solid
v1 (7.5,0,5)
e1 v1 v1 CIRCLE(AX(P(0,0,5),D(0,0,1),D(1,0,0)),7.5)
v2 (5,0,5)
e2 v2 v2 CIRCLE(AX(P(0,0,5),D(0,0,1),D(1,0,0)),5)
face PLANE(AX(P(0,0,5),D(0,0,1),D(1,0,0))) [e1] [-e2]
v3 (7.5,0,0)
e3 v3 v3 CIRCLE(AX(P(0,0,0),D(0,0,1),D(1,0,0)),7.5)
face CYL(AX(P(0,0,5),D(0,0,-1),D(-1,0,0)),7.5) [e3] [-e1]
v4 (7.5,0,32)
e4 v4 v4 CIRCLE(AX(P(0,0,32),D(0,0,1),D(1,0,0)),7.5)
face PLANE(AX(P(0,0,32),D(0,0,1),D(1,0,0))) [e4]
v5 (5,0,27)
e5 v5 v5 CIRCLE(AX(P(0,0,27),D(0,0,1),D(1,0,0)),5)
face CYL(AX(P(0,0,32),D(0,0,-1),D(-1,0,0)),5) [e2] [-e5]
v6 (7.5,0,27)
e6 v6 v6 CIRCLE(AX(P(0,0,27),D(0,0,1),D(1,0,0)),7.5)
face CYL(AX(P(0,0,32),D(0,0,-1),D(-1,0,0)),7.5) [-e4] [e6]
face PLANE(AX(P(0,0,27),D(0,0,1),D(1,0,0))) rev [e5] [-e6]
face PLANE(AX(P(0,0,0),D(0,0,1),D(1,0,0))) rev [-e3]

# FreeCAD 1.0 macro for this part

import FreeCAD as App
import Part
import Sketcher

V = App.Vector

doc = App.newDocument("Part")
body = doc.addObject("PartDesign::Body", "Body")

sketch1 = doc.addObject("Sketcher::SketchObject", "Sketch")
body.addObject(sketch1)
sketch1.AttachmentSupport = (doc.XY_Plane, [""])
sketch1.MapMode = "FlatFace"
sketch1.addGeometry(Part.Circle(V(0, 0, 0), V(0, 0, 1), 5), False)
sketch1.addConstraint(Sketcher.Constraint("Coincident", 0, 3, -1, 1))
sketch1.addConstraint(Sketcher.Constraint("Diameter", 0, 10.0))
pad1 = doc.addObject("PartDesign::Pad", "Pad")
body.addObject(pad1)
pad1.Profile = sketch1
pad1.Length = 32

sketch2 = doc.addObject("Sketcher::SketchObject", "Sketch001")
body.addObject(sketch2)
sketch2.AttachmentSupport = (doc.XY_Plane, [""])
sketch2.MapMode = "FlatFace"
sketch2.addGeometry(Part.Circle(V(0, 0, 0), V(0, 0, 1), 8), False)
sketch2.addGeometry(Part.Circle(V(0, 0, 0), V(0, 0, 1), 5), False)
sketch2.addConstraint(Sketcher.Constraint("Coincident", 0, 3, -1, 1))
sketch2.addConstraint(Sketcher.Constraint("Coincident", 1, 3, -1, 1))
sketch2.addConstraint(Sketcher.Constraint("Diameter", 0, 15.0))
sketch2.addConstraint(Sketcher.Constraint("Diameter", 1, 10.0))
pad2 = doc.addObject("PartDesign::Pad", "Pad001")
body.addObject(pad2)
pad2.Profile = sketch2
pad2.Length = 5

sketch3 = doc.addObject("Sketcher::SketchObject", "Sketch002")
body.addObject(sketch3)
sketch3.AttachmentSupport = (doc.XY_Plane, [""])
sketch3.MapMode = "FlatFace"
sketch3.AttachmentOffset = App.Placement(V(0, 0, 27), App.Rotation())
sketch3.addGeometry(Part.Circle(V(0, 0, 0), V(0, 0, 1), 8), False)
sketch3.addGeometry(Part.Circle(V(0, 0, 0), V(0, 0, 1), 5), False)
sketch3.addConstraint(Sketcher.Constraint("Coincident", 0, 3, -1, 1))
sketch3.addConstraint(Sketcher.Constraint("Coincident", 1, 3, -1, 1))
sketch3.addConstraint(Sketcher.Constraint("Diameter", 0, 15.0))
sketch3.addConstraint(Sketcher.Constraint("Diameter", 1, 10.0))
pad3 = doc.addObject("PartDesign::Pad", "Pad002")
body.addObject(pad3)
pad3.Profile = sketch3
pad3.Length = 5

doc.recompute()
